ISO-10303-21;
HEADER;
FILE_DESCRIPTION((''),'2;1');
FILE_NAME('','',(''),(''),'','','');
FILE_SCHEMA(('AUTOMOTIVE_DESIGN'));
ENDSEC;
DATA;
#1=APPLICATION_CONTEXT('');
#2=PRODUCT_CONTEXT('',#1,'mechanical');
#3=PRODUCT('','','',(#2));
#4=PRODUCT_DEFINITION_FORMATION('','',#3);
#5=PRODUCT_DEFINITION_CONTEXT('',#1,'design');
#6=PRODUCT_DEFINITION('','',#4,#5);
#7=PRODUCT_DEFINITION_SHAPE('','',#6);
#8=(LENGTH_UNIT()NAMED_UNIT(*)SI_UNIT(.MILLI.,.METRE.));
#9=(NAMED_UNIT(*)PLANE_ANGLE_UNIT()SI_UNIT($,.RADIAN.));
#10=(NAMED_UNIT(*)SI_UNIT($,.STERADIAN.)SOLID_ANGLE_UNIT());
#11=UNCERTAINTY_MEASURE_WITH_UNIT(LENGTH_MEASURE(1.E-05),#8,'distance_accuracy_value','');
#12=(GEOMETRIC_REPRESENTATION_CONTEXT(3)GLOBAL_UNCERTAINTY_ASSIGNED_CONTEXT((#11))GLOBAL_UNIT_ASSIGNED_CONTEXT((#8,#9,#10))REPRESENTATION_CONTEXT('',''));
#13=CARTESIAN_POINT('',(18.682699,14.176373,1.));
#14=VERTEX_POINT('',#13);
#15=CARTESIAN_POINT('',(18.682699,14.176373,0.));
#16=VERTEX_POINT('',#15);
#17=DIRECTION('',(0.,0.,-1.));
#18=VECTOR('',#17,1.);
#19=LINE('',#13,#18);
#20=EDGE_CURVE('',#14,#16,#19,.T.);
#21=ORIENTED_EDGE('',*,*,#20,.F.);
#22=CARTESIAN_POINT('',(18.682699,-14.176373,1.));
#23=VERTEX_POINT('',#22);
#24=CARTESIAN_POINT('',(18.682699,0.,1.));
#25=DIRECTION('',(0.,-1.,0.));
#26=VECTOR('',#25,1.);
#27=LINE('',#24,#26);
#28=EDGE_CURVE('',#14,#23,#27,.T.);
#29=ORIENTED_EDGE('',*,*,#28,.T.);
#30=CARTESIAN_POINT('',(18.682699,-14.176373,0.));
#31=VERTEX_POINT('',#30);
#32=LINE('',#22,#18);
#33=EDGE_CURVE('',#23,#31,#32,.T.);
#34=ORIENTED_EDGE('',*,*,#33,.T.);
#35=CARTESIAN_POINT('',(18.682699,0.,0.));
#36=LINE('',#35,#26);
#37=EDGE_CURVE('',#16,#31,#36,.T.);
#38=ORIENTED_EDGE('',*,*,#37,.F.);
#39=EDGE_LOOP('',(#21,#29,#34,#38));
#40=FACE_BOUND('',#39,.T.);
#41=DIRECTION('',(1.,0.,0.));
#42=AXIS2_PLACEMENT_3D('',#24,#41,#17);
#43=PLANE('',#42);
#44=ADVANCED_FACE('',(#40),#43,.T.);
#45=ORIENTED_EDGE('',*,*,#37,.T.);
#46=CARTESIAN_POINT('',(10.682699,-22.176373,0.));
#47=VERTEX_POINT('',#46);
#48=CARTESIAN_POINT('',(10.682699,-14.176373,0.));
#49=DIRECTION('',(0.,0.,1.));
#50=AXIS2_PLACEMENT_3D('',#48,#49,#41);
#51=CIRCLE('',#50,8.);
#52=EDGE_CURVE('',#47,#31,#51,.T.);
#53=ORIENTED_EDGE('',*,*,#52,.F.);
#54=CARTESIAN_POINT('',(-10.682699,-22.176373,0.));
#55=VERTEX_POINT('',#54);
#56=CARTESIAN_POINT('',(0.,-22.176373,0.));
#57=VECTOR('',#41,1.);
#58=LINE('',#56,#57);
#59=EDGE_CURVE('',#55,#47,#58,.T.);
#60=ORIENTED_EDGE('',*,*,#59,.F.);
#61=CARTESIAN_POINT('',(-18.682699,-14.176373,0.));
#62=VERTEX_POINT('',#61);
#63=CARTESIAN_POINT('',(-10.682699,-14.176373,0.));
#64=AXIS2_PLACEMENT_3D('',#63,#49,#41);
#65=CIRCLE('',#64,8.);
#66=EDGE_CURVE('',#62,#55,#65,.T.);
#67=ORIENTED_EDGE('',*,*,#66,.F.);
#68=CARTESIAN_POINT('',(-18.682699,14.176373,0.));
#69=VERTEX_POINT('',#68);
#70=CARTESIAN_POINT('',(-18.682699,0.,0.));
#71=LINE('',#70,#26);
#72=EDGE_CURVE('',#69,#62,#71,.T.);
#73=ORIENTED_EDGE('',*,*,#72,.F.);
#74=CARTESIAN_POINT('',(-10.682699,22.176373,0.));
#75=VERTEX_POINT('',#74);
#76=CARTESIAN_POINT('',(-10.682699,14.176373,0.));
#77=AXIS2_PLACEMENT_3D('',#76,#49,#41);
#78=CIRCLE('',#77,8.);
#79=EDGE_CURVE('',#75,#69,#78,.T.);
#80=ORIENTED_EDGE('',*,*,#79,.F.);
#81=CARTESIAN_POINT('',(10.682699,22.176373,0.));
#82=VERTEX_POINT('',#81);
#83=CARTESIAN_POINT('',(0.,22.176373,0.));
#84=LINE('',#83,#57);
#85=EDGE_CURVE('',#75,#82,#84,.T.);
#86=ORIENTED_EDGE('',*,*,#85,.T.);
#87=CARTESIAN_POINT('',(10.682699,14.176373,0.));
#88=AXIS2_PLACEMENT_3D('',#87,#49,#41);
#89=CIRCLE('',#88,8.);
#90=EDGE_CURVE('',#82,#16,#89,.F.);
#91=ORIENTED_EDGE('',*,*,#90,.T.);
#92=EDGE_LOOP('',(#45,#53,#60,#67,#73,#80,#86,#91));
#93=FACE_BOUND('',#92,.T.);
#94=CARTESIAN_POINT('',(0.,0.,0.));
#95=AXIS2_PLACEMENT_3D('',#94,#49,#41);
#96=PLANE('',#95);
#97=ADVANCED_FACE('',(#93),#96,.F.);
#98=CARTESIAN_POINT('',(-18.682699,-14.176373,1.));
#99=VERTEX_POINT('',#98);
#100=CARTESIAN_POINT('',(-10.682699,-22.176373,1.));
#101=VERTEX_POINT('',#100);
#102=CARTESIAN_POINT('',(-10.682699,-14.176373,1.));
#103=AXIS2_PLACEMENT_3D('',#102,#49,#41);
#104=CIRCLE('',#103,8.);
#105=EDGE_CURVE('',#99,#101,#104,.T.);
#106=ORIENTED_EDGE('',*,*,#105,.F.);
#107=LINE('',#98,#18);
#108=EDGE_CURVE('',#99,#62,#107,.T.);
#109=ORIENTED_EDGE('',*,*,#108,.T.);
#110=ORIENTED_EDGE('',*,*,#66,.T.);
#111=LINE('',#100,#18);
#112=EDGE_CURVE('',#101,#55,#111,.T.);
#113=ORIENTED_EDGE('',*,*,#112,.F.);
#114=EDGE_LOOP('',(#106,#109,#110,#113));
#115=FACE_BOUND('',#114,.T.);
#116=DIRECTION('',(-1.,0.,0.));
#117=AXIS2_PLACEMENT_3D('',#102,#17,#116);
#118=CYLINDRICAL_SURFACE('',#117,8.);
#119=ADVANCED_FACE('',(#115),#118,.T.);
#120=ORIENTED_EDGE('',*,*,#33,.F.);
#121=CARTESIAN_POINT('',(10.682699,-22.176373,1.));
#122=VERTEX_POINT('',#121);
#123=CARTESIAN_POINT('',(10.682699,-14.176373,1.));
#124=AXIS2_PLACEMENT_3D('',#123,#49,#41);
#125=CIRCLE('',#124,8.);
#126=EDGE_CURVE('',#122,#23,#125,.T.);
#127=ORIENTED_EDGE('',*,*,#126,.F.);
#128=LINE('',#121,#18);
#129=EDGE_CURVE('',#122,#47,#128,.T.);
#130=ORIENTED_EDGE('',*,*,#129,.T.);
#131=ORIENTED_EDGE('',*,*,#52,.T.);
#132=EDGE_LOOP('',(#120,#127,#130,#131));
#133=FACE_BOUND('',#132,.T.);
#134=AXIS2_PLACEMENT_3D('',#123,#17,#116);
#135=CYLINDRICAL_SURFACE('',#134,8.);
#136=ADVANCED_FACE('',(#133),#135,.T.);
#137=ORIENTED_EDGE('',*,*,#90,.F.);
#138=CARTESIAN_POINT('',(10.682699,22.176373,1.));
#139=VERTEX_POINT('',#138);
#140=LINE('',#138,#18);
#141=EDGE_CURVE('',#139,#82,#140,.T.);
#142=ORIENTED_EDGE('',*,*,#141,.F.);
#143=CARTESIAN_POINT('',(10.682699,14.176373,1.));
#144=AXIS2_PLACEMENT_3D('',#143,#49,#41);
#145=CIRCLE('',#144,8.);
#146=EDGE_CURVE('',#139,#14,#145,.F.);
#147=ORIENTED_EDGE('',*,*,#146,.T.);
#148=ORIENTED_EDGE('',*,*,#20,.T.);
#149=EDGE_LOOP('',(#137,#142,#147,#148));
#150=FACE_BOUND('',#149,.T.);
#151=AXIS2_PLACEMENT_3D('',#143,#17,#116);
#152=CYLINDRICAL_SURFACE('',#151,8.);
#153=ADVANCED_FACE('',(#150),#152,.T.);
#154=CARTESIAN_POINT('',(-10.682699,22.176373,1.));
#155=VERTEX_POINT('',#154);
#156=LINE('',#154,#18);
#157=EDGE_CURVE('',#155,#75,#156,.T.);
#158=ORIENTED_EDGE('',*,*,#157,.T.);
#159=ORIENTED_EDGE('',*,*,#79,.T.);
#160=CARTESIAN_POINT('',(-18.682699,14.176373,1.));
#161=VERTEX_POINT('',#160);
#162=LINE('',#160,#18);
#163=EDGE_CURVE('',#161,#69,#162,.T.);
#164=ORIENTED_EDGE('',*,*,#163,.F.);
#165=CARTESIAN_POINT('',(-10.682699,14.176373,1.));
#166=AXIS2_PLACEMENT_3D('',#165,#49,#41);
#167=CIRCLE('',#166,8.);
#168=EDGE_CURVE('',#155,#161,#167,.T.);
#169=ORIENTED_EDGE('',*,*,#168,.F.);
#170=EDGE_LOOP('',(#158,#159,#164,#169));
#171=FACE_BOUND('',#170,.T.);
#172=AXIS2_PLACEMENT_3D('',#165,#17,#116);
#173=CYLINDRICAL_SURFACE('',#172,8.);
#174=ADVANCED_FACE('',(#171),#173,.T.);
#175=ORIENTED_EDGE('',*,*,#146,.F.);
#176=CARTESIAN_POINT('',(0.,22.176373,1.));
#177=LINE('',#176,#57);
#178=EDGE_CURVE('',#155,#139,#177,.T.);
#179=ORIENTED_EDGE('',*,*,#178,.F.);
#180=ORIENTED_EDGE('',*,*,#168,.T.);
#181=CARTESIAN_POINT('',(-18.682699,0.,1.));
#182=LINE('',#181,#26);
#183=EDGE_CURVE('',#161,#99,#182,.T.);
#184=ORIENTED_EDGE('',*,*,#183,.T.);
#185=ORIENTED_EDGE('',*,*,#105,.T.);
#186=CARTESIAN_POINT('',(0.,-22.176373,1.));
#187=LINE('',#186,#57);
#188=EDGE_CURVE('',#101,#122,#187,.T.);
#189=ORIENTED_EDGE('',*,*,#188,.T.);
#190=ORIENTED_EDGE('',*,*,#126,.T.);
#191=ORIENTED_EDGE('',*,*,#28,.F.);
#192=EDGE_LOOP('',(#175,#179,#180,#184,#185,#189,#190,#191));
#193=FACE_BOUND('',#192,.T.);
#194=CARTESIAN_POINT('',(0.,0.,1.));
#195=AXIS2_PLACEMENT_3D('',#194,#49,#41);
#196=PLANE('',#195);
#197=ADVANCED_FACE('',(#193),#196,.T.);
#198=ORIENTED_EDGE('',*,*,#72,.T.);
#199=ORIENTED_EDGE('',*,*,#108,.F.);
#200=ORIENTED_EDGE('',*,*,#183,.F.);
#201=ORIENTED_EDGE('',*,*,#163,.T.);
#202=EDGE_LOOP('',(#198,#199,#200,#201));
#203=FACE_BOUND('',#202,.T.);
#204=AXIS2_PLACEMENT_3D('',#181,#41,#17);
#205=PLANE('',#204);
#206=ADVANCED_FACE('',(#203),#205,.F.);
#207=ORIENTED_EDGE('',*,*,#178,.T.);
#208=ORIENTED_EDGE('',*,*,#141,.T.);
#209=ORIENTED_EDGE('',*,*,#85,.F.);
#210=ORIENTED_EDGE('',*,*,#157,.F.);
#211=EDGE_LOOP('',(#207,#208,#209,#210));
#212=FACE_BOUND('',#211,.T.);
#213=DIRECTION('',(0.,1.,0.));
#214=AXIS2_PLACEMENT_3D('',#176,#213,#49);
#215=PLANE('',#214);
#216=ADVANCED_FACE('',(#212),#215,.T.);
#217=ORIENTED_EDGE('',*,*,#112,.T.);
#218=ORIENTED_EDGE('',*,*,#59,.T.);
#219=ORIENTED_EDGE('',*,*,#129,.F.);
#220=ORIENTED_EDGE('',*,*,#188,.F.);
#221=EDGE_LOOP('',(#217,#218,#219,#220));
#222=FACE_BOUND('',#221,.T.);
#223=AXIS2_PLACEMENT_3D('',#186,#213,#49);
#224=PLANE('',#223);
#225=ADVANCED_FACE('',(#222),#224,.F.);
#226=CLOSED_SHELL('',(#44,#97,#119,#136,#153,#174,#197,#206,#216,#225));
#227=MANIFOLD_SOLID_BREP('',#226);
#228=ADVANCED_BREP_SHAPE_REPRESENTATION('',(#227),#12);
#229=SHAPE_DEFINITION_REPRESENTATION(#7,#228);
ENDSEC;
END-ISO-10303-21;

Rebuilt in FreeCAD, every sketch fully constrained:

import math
import FreeCAD as App
import Part
import Sketcher

V = App.Vector

doc = App.newDocument("Part")
body = doc.addObject("PartDesign::Body", "Body")

# Sketch on XY plane
sketch1 = doc.addObject("Sketcher::SketchObject", "Sketch")
body.addObject(sketch1)
sketch1.AttachmentSupport = (doc.XY_Plane, [""])
sketch1.MapMode = "FlatFace"
sketch1.addGeometry([
    Part.LineSegment(V(11, 22, 0), V(-11, 22, 0)),  # 0
    Part.ArcOfCircle(Part.Circle(V(-11, 14, 0), V(0, 0, 1), 8), math.radians(90), math.radians(180)),  # 1
    Part.LineSegment(V(-19, 14, 0), V(-19, -14, 0)),  # 2
    Part.ArcOfCircle(Part.Circle(V(-11, -14, 0), V(0, 0, 1), 8), math.radians(180), math.radians(270)),  # 3
    Part.LineSegment(V(-11, -22, 0), V(11, -22, 0)),  # 4
    Part.ArcOfCircle(Part.Circle(V(11, -14, 0), V(0, 0, 1), 8), math.radians(-90), math.radians(0)),  # 5
    Part.LineSegment(V(19, -14, 0), V(19, 14, 0)),  # 6
    Part.ArcOfCircle(Part.Circle(V(11, 14, 0), V(0, 0, 1), 8), math.radians(0), math.radians(90)),  # 7
], False)
sketch1.addConstraint([
    Sketcher.Constraint("Tangent", 0, 2, 1, 1),
    Sketcher.Constraint("Tangent", 1, 2, 2, 1),
    Sketcher.Constraint("Tangent", 2, 2, 3, 1),
    Sketcher.Constraint("Tangent", 3, 2, 4, 1),
    Sketcher.Constraint("Tangent", 4, 2, 5, 1),
    Sketcher.Constraint("Tangent", 5, 2, 6, 1),
    Sketcher.Constraint("Tangent", 6, 2, 7, 1),
    Sketcher.Constraint("Tangent", 7, 2, 0, 1),
    Sketcher.Constraint("Horizontal", 0),
    Sketcher.Constraint("Vertical", 2),
    Sketcher.Constraint("Horizontal", 4),
    Sketcher.Constraint("Vertical", 6),
    Sketcher.Constraint("Equal", 1, 3),
    Sketcher.Constraint("Equal", 3, 5),
    Sketcher.Constraint("Equal", 5, 7),
    Sketcher.Constraint("Symmetric", 1, 3, 5, 3, -1, 1),
    Sketcher.Constraint("Radius", 1, 8.0),
    Sketcher.Constraint("DistanceX", 1, 3, -1, 1, 10.682699),
    Sketcher.Constraint("DistanceY", 2, 2, 2, 1, 28.352745),
])
pad1 = doc.addObject("PartDesign::Pad", "Pad")
body.addObject(pad1)
pad1.Profile = sketch1
pad1.Length = 1

doc.recompute()
